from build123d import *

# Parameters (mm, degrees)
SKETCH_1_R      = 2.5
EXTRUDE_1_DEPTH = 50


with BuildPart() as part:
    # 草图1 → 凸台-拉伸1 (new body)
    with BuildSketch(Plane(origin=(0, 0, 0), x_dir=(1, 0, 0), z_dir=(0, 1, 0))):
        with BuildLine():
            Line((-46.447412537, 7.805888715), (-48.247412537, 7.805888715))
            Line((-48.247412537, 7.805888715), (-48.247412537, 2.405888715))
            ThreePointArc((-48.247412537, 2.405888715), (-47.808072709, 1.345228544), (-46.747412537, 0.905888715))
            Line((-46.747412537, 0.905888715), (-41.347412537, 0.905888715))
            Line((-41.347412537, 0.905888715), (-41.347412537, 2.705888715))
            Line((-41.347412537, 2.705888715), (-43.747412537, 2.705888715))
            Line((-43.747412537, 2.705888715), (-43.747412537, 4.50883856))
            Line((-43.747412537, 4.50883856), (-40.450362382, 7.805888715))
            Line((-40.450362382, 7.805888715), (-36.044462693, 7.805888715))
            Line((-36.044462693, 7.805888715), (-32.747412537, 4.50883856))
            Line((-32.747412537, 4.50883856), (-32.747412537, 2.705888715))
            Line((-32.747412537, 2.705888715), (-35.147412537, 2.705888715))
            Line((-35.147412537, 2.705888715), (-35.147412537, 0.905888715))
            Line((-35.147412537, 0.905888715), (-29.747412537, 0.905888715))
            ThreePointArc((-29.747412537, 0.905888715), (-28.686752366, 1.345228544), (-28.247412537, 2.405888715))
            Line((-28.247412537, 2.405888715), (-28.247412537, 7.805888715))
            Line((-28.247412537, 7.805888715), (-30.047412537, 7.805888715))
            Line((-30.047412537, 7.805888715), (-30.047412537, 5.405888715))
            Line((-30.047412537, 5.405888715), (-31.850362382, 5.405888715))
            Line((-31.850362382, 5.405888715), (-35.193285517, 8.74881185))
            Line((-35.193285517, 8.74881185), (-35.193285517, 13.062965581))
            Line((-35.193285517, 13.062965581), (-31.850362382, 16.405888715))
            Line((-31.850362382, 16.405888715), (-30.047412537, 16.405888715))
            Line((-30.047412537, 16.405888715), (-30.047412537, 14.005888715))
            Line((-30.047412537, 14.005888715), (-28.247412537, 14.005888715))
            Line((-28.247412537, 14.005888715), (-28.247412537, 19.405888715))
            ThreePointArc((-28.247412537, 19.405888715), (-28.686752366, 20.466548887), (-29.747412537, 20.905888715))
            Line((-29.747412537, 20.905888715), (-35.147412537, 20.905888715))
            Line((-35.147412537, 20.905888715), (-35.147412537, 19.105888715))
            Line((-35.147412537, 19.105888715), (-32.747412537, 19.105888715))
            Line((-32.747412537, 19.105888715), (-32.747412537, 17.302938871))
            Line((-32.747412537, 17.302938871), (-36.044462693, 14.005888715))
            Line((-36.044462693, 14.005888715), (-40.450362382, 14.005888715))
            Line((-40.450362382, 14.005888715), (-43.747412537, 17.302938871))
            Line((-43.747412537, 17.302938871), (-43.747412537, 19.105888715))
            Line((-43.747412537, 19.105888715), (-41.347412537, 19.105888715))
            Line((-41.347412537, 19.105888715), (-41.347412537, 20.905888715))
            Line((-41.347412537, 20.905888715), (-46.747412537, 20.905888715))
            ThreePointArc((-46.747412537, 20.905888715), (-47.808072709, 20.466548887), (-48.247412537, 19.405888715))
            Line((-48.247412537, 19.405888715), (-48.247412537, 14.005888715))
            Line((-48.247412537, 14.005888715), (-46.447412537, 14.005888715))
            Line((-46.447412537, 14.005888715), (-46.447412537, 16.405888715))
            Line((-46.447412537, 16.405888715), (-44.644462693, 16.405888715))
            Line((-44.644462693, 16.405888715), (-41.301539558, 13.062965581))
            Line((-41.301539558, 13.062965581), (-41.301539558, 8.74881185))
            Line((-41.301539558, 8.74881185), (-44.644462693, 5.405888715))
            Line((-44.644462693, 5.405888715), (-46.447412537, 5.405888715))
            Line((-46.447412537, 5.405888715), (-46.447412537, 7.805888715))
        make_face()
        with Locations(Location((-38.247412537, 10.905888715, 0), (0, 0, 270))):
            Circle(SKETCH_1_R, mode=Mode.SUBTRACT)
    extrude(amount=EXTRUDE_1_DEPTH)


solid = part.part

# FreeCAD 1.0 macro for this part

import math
import FreeCAD as App
import Part
import Sketcher
from FreeCAD import Vector
Q = App.Units.Quantity

doc = App.newDocument("Part")
body = doc.addObject("PartDesign::Body", "Body")

sketch1 = doc.addObject("Sketcher::SketchObject", "Sketch")
body.addObject(sketch1)
sketch1.AttachmentSupport = (doc.XZ_Plane, [""])
sketch1.MapMode = "FlatFace"
sketch1.addGeometry([
    Part.LineSegment(Vector(-46.447413, -7.805889, 0), Vector(-48.247413, -7.805889, 0)),
    Part.LineSegment(Vector(-48.247413, -7.805889, 0), Vector(-48.247413, -2.405889, 0)),
    Part.ArcOfCircle(Part.Circle(Vector(-46.747413, -2.405889, 0), Vector(0, 0, 1), 1.5), math.radians(90), math.radians(180)),
    Part.LineSegment(Vector(-46.747413, -0.905889, 0), Vector(-41.347413, -0.905889, 0)),
    Part.LineSegment(Vector(-41.347413, -0.905889, 0), Vector(-41.347413, -2.705889, 0)),
    Part.LineSegment(Vector(-41.347413, -2.705889, 0), Vector(-43.747413, -2.705889, 0)),
    Part.LineSegment(Vector(-43.747413, -2.705889, 0), Vector(-43.747413, -4.508839, 0)),
    Part.LineSegment(Vector(-43.747413, -4.508839, 0), Vector(-40.450362, -7.805889, 0)),
    Part.LineSegment(Vector(-40.450362, -7.805889, 0), Vector(-36.044463, -7.805889, 0)),
    Part.LineSegment(Vector(-36.044463, -7.805889, 0), Vector(-32.747413, -4.508839, 0)),
    Part.LineSegment(Vector(-32.747413, -4.508839, 0), Vector(-32.747413, -2.705889, 0)),
    Part.LineSegment(Vector(-32.747413, -2.705889, 0), Vector(-35.147413, -2.705889, 0)),
    Part.LineSegment(Vector(-35.147413, -2.705889, 0), Vector(-35.147413, -0.905889, 0)),
    Part.LineSegment(Vector(-35.147413, -0.905889, 0), Vector(-29.747413, -0.905889, 0)),
    Part.ArcOfCircle(Part.Circle(Vector(-29.747413, -2.405889, 0), Vector(0, 0, 1), 1.5), math.radians(0), math.radians(90)),
    Part.LineSegment(Vector(-28.247413, -2.405889, 0), Vector(-28.247413, -7.805889, 0)),
    Part.LineSegment(Vector(-28.247413, -7.805889, 0), Vector(-30.047413, -7.805889, 0)),
    Part.LineSegment(Vector(-30.047413, -7.805889, 0), Vector(-30.047413, -5.405889, 0)),
    Part.LineSegment(Vector(-30.047413, -5.405889, 0), Vector(-31.850362, -5.405889, 0)),
    Part.LineSegment(Vector(-31.850362, -5.405889, 0), Vector(-35.193286, -8.748812, 0)),
    Part.LineSegment(Vector(-35.193286, -8.748812, 0), Vector(-35.193286, -13.062966, 0)),
    Part.LineSegment(Vector(-35.193286, -13.062966, 0), Vector(-31.850362, -16.405889, 0)),
    Part.LineSegment(Vector(-31.850362, -16.405889, 0), Vector(-30.047413, -16.405889, 0)),
    Part.LineSegment(Vector(-30.047413, -16.405889, 0), Vector(-30.047413, -14.005889, 0)),
    Part.LineSegment(Vector(-30.047413, -14.005889, 0), Vector(-28.247413, -14.005889, 0)),
    Part.LineSegment(Vector(-28.247413, -14.005889, 0), Vector(-28.247413, -19.405889, 0)),
    Part.ArcOfCircle(Part.Circle(Vector(-29.747413, -19.405889, 0), Vector(0, 0, 1), 1.5), math.radians(-90), math.radians(0)),
    Part.LineSegment(Vector(-29.747413, -20.905889, 0), Vector(-35.147413, -20.905889, 0)),
    Part.LineSegment(Vector(-35.147413, -20.905889, 0), Vector(-35.147413, -19.105889, 0)),
    Part.LineSegment(Vector(-35.147413, -19.105889, 0), Vector(-32.747413, -19.105889, 0)),
    Part.LineSegment(Vector(-32.747413, -19.105889, 0), Vector(-32.747413, -17.302939, 0)),
    Part.LineSegment(Vector(-32.747413, -17.302939, 0), Vector(-36.044463, -14.005889, 0)),
    Part.LineSegment(Vector(-36.044463, -14.005889, 0), Vector(-40.450362, -14.005889, 0)),
    Part.LineSegment(Vector(-40.450362, -14.005889, 0), Vector(-43.747413, -17.302939, 0)),
    Part.LineSegment(Vector(-43.747413, -17.302939, 0), Vector(-43.747413, -19.105889, 0)),
    Part.LineSegment(Vector(-43.747413, -19.105889, 0), Vector(-41.347413, -19.105889, 0)),
    Part.LineSegment(Vector(-41.347413, -19.105889, 0), Vector(-41.347413, -20.905889, 0)),
    Part.LineSegment(Vector(-41.347413, -20.905889, 0), Vector(-46.747413, -20.905889, 0)),
    Part.ArcOfCircle(Part.Circle(Vector(-46.747413, -19.405889, 0), Vector(0, 0, 1), 1.5), math.radians(180), math.radians(270)),
    Part.LineSegment(Vector(-48.247413, -19.405889, 0), Vector(-48.247413, -14.005889, 0)),
    Part.LineSegment(Vector(-48.247413, -14.005889, 0), Vector(-46.447413, -14.005889, 0)),
    Part.LineSegment(Vector(-46.447413, -14.005889, 0), Vector(-46.447413, -16.405889, 0)),
    Part.LineSegment(Vector(-46.447413, -16.405889, 0), Vector(-44.644463, -16.405889, 0)),
    Part.LineSegment(Vector(-44.644463, -16.405889, 0), Vector(-41.30154, -13.062966, 0)),
    Part.LineSegment(Vector(-41.30154, -13.062966, 0), Vector(-41.30154, -8.748812, 0)),
    Part.LineSegment(Vector(-41.30154, -8.748812, 0), Vector(-44.644463, -5.405889, 0)),
    Part.LineSegment(Vector(-44.644463, -5.405889, 0), Vector(-46.447413, -5.405889, 0)),
    Part.LineSegment(Vector(-46.447413, -5.405889, 0), Vector(-46.447413, -7.805889, 0)),
    Part.Circle(Vector(-38.247413, -10.905889, 0), Vector(0, 0, 1), 2.5),
], False)
sketch1.addConstraint([
    Sketcher.Constraint("Coincident", 0, 2, 1, 1),
    Sketcher.Constraint("Tangent", 1, 2, 2, 2),
    Sketcher.Constraint("Tangent", 2, 1, 3, 1),
    Sketcher.Constraint("Coincident", 3, 2, 4, 1),
    Sketcher.Constraint("Coincident", 4, 2, 5, 1),
    Sketcher.Constraint("Coincident", 5, 2, 6, 1),
    Sketcher.Constraint("Coincident", 6, 2, 7, 1),
    Sketcher.Constraint("Coincident", 7, 2, 8, 1),
    Sketcher.Constraint("Coincident", 8, 2, 9, 1),
    Sketcher.Constraint("Coincident", 9, 2, 10, 1),
    Sketcher.Constraint("Coincident", 10, 2, 11, 1),
    Sketcher.Constraint("Coincident", 11, 2, 12, 1),
    Sketcher.Constraint("Coincident", 12, 2, 13, 1),
    Sketcher.Constraint("Tangent", 13, 2, 14, 2),
    Sketcher.Constraint("Tangent", 14, 1, 15, 1),
    Sketcher.Constraint("Coincident", 15, 2, 16, 1),
    Sketcher.Constraint("Coincident", 16, 2, 17, 1),
    Sketcher.Constraint("Coincident", 17, 2, 18, 1),
    Sketcher.Constraint("Coincident", 18, 2, 19, 1),
    Sketcher.Constraint("Coincident", 19, 2, 20, 1),
    Sketcher.Constraint("Coincident", 20, 2, 21, 1),
    Sketcher.Constraint("Coincident", 21, 2, 22, 1),
    Sketcher.Constraint("Coincident", 22, 2, 23, 1),
    Sketcher.Constraint("Coincident", 23, 2, 24, 1),
    Sketcher.Constraint("Coincident", 24, 2, 25, 1),
    Sketcher.Constraint("Tangent", 25, 2, 26, 2),
    Sketcher.Constraint("Tangent", 26, 1, 27, 1),
    Sketcher.Constraint("Coincident", 27, 2, 28, 1),
    Sketcher.Constraint("Coincident", 28, 2, 29, 1),
    Sketcher.Constraint("Coincident", 29, 2, 30, 1),
    Sketcher.Constraint("Coincident", 30, 2, 31, 1),
    Sketcher.Constraint("Coincident", 31, 2, 32, 1),
    Sketcher.Constraint("Coincident", 32, 2, 33, 1),
    Sketcher.Constraint("Coincident", 33, 2, 34, 1),
    Sketcher.Constraint("Coincident", 34, 2, 35, 1),
    Sketcher.Constraint("Coincident", 35, 2, 36, 1),
    Sketcher.Constraint("Coincident", 36, 2, 37, 1),
    Sketcher.Constraint("Tangent", 37, 2, 38, 2),
    Sketcher.Constraint("Tangent", 38, 1, 39, 1),
    Sketcher.Constraint("Coincident", 39, 2, 40, 1),
    Sketcher.Constraint("Coincident", 40, 2, 41, 1),
    Sketcher.Constraint("Coincident", 41, 2, 42, 1),
    Sketcher.Constraint("Coincident", 42, 2, 43, 1),
    Sketcher.Constraint("Coincident", 43, 2, 44, 1),
    Sketcher.Constraint("Coincident", 44, 2, 45, 1),
    Sketcher.Constraint("Coincident", 45, 2, 46, 1),
    Sketcher.Constraint("Coincident", 46, 2, 47, 1),
    Sketcher.Constraint("Coincident", 47, 2, 0, 1),
    Sketcher.Constraint("Horizontal", 0),
    Sketcher.Constraint("Vertical", 1),
    Sketcher.Constraint("Horizontal", 3),
    Sketcher.Constraint("Vertical", 4),
    Sketcher.Constraint("Horizontal", 5),
    Sketcher.Constraint("Vertical", 6),
    Sketcher.Constraint("Horizontal", 8),
    Sketcher.Constraint("Vertical", 10),
    Sketcher.Constraint("Horizontal", 11),
    Sketcher.Constraint("Vertical", 12),
    Sketcher.Constraint("Horizontal", 13),
    Sketcher.Constraint("Vertical", 15),
    Sketcher.Constraint("Horizontal", 16),
    Sketcher.Constraint("Vertical", 17),
    Sketcher.Constraint("Horizontal", 18),
    Sketcher.Constraint("Vertical", 20),
    Sketcher.Constraint("Horizontal", 22),
    Sketcher.Constraint("Vertical", 23),
    Sketcher.Constraint("Horizontal", 24),
    Sketcher.Constraint("Vertical", 25),
    Sketcher.Constraint("Horizontal", 27),
    Sketcher.Constraint("Vertical", 28),
    Sketcher.Constraint("Horizontal", 29),
    Sketcher.Constraint("Vertical", 30),
    Sketcher.Constraint("Horizontal", 32),
    Sketcher.Constraint("Vertical", 34),
    Sketcher.Constraint("Horizontal", 35),
    Sketcher.Constraint("Vertical", 36),
    Sketcher.Constraint("Horizontal", 37),
    Sketcher.Constraint("Vertical", 39),
    Sketcher.Constraint("Horizontal", 40),
    Sketcher.Constraint("Vertical", 41),
    Sketcher.Constraint("Horizontal", 42),
    Sketcher.Constraint("Vertical", 44),
    Sketcher.Constraint("Horizontal", 46),
    Sketcher.Constraint("Vertical", 47),
    Sketcher.Constraint("Equal", 2, 14),
    Sketcher.Constraint("Equal", 14, 26),
    Sketcher.Constraint("Equal", 26, 38),
    Sketcher.Constraint("Perpendicular", 7, 9),
    Sketcher.Constraint("Parallel", 9, 19),
    Sketcher.Constraint("Perpendicular", 19, 21),
    Sketcher.Constraint("Parallel", 21, 31),
    Sketcher.Constraint("Perpendicular", 31, 33),
    Sketcher.Constraint("Parallel", 33, 43),
    Sketcher.Constraint("Perpendicular", 43, 45),
    Sketcher.Constraint("Horizontal", 2, 3, 14, 3),
    Sketcher.Constraint("Horizontal", 26, 3, 38, 3),
    Sketcher.Constraint("Horizontal", 0, 2, 7, 2),
    Sketcher.Constraint("Horizontal", 6, 2, 9, 2),
    Sketcher.Constraint("Horizontal", 5, 2, 10, 2),
    Sketcher.Constraint("Horizontal", 8, 2, 15, 2),
    Sketcher.Constraint("Horizontal", 24, 2, 31, 2),
    Sketcher.Constraint("Horizontal", 30, 2, 33, 2),
    Sketcher.Constraint("Horizontal", 29, 2, 34, 2),
    Sketcher.Constraint("Horizontal", 32, 2, 39, 2),
    Sketcher.Constraint("Horizontal", 22, 2, 41, 2),
    Sketcher.Constraint("Horizontal", 20, 2, 43, 2),
    Sketcher.Constraint("Horizontal", 19, 2, 44, 2),
    Sketcher.Constraint("Horizontal", 18, 2, 45, 2),
    Sketcher.Constraint("Vertical", 14, 3, 26, 3),
    Sketcher.Constraint("Vertical", 2, 3, 38, 3),
    Sketcher.Constraint("Vertical", 18, 2, 21, 2),
    Sketcher.Constraint("Vertical", 17, 2, 22, 2),
    Sketcher.Constraint("Vertical", 12, 2, 27, 2),
    Sketcher.Constraint("Vertical", 10, 2, 29, 2),
    Sketcher.Constraint("Vertical", 8, 2, 31, 2),
    Sketcher.Constraint("Vertical", 7, 2, 32, 2),
    Sketcher.Constraint("Vertical", 6, 2, 33, 2),
    Sketcher.Constraint("Vertical", 4, 2, 35, 2),
    Sketcher.Constraint("Vertical", 41, 2, 46, 2),
    Sketcher.Constraint("Equal", 5, 11),
    Sketcher.Constraint("Equal", 3, 13),
    Sketcher.Constraint("Equal", 0, 16),
    Sketcher.Constraint("Equal", 22, 42),
    Sketcher.Constraint("Equal", 37, 1),
    Sketcher.Constraint("Equal", 40, 4),
    Sketcher.Constraint("Equal", 46, 6),
    Sketcher.Constraint("Equal", 35, 17),
    Sketcher.Constraint("Equal", 17, 23),
    Sketcher.Constraint("Equal", 15, 25),
    Sketcher.Constraint("Equal", 12, 28),
    Sketcher.Constraint("Diameter", 48, Q("5 mm")),
    Sketcher.Constraint("Radius", 2, Q("1.5 mm")),
    Sketcher.Constraint("DistanceX", 0, 2, 0, 1, Q("1.8 mm")),
    Sketcher.Constraint("DistanceX", 3, 1, 3, 2, Q("5.4 mm")),
    Sketcher.Constraint("DistanceX", 5, 2, 5, 1, Q("2.4 mm")),
    Sketcher.Constraint("DistanceX", 2, 3, 14, 3, Q("17 mm")),
    Sketcher.Constraint("DistanceY", 26, 3, 14, 3, Q("17 mm")),
    Sketcher.Constraint("DistanceX", 0, 2, 48, 3, Q("10 mm")),
    Sketcher.Constraint("DistanceY", 48, 3, 2, 1, Q("10 mm")),
    Sketcher.Constraint("DistanceX", 8, 1, 8, 2, Q("4.4059 mm")),
    Sketcher.Constraint("DistanceY", 20, 2, 20, 1, Q("4.314154 mm")),
    Sketcher.Constraint("DistanceY", 2, 3, -1, 1, Q("2.405889 mm")),
    Sketcher.Constraint("DistanceX", 43, 2, -1, 1, Q("41.30154 mm")),
])
pad1 = doc.addObject("PartDesign::Pad", "Pad")
body.addObject(pad1)
pad1.Profile = sketch1
pad1.Length = 50
pad1.Reversed = True

doc.recompute()
